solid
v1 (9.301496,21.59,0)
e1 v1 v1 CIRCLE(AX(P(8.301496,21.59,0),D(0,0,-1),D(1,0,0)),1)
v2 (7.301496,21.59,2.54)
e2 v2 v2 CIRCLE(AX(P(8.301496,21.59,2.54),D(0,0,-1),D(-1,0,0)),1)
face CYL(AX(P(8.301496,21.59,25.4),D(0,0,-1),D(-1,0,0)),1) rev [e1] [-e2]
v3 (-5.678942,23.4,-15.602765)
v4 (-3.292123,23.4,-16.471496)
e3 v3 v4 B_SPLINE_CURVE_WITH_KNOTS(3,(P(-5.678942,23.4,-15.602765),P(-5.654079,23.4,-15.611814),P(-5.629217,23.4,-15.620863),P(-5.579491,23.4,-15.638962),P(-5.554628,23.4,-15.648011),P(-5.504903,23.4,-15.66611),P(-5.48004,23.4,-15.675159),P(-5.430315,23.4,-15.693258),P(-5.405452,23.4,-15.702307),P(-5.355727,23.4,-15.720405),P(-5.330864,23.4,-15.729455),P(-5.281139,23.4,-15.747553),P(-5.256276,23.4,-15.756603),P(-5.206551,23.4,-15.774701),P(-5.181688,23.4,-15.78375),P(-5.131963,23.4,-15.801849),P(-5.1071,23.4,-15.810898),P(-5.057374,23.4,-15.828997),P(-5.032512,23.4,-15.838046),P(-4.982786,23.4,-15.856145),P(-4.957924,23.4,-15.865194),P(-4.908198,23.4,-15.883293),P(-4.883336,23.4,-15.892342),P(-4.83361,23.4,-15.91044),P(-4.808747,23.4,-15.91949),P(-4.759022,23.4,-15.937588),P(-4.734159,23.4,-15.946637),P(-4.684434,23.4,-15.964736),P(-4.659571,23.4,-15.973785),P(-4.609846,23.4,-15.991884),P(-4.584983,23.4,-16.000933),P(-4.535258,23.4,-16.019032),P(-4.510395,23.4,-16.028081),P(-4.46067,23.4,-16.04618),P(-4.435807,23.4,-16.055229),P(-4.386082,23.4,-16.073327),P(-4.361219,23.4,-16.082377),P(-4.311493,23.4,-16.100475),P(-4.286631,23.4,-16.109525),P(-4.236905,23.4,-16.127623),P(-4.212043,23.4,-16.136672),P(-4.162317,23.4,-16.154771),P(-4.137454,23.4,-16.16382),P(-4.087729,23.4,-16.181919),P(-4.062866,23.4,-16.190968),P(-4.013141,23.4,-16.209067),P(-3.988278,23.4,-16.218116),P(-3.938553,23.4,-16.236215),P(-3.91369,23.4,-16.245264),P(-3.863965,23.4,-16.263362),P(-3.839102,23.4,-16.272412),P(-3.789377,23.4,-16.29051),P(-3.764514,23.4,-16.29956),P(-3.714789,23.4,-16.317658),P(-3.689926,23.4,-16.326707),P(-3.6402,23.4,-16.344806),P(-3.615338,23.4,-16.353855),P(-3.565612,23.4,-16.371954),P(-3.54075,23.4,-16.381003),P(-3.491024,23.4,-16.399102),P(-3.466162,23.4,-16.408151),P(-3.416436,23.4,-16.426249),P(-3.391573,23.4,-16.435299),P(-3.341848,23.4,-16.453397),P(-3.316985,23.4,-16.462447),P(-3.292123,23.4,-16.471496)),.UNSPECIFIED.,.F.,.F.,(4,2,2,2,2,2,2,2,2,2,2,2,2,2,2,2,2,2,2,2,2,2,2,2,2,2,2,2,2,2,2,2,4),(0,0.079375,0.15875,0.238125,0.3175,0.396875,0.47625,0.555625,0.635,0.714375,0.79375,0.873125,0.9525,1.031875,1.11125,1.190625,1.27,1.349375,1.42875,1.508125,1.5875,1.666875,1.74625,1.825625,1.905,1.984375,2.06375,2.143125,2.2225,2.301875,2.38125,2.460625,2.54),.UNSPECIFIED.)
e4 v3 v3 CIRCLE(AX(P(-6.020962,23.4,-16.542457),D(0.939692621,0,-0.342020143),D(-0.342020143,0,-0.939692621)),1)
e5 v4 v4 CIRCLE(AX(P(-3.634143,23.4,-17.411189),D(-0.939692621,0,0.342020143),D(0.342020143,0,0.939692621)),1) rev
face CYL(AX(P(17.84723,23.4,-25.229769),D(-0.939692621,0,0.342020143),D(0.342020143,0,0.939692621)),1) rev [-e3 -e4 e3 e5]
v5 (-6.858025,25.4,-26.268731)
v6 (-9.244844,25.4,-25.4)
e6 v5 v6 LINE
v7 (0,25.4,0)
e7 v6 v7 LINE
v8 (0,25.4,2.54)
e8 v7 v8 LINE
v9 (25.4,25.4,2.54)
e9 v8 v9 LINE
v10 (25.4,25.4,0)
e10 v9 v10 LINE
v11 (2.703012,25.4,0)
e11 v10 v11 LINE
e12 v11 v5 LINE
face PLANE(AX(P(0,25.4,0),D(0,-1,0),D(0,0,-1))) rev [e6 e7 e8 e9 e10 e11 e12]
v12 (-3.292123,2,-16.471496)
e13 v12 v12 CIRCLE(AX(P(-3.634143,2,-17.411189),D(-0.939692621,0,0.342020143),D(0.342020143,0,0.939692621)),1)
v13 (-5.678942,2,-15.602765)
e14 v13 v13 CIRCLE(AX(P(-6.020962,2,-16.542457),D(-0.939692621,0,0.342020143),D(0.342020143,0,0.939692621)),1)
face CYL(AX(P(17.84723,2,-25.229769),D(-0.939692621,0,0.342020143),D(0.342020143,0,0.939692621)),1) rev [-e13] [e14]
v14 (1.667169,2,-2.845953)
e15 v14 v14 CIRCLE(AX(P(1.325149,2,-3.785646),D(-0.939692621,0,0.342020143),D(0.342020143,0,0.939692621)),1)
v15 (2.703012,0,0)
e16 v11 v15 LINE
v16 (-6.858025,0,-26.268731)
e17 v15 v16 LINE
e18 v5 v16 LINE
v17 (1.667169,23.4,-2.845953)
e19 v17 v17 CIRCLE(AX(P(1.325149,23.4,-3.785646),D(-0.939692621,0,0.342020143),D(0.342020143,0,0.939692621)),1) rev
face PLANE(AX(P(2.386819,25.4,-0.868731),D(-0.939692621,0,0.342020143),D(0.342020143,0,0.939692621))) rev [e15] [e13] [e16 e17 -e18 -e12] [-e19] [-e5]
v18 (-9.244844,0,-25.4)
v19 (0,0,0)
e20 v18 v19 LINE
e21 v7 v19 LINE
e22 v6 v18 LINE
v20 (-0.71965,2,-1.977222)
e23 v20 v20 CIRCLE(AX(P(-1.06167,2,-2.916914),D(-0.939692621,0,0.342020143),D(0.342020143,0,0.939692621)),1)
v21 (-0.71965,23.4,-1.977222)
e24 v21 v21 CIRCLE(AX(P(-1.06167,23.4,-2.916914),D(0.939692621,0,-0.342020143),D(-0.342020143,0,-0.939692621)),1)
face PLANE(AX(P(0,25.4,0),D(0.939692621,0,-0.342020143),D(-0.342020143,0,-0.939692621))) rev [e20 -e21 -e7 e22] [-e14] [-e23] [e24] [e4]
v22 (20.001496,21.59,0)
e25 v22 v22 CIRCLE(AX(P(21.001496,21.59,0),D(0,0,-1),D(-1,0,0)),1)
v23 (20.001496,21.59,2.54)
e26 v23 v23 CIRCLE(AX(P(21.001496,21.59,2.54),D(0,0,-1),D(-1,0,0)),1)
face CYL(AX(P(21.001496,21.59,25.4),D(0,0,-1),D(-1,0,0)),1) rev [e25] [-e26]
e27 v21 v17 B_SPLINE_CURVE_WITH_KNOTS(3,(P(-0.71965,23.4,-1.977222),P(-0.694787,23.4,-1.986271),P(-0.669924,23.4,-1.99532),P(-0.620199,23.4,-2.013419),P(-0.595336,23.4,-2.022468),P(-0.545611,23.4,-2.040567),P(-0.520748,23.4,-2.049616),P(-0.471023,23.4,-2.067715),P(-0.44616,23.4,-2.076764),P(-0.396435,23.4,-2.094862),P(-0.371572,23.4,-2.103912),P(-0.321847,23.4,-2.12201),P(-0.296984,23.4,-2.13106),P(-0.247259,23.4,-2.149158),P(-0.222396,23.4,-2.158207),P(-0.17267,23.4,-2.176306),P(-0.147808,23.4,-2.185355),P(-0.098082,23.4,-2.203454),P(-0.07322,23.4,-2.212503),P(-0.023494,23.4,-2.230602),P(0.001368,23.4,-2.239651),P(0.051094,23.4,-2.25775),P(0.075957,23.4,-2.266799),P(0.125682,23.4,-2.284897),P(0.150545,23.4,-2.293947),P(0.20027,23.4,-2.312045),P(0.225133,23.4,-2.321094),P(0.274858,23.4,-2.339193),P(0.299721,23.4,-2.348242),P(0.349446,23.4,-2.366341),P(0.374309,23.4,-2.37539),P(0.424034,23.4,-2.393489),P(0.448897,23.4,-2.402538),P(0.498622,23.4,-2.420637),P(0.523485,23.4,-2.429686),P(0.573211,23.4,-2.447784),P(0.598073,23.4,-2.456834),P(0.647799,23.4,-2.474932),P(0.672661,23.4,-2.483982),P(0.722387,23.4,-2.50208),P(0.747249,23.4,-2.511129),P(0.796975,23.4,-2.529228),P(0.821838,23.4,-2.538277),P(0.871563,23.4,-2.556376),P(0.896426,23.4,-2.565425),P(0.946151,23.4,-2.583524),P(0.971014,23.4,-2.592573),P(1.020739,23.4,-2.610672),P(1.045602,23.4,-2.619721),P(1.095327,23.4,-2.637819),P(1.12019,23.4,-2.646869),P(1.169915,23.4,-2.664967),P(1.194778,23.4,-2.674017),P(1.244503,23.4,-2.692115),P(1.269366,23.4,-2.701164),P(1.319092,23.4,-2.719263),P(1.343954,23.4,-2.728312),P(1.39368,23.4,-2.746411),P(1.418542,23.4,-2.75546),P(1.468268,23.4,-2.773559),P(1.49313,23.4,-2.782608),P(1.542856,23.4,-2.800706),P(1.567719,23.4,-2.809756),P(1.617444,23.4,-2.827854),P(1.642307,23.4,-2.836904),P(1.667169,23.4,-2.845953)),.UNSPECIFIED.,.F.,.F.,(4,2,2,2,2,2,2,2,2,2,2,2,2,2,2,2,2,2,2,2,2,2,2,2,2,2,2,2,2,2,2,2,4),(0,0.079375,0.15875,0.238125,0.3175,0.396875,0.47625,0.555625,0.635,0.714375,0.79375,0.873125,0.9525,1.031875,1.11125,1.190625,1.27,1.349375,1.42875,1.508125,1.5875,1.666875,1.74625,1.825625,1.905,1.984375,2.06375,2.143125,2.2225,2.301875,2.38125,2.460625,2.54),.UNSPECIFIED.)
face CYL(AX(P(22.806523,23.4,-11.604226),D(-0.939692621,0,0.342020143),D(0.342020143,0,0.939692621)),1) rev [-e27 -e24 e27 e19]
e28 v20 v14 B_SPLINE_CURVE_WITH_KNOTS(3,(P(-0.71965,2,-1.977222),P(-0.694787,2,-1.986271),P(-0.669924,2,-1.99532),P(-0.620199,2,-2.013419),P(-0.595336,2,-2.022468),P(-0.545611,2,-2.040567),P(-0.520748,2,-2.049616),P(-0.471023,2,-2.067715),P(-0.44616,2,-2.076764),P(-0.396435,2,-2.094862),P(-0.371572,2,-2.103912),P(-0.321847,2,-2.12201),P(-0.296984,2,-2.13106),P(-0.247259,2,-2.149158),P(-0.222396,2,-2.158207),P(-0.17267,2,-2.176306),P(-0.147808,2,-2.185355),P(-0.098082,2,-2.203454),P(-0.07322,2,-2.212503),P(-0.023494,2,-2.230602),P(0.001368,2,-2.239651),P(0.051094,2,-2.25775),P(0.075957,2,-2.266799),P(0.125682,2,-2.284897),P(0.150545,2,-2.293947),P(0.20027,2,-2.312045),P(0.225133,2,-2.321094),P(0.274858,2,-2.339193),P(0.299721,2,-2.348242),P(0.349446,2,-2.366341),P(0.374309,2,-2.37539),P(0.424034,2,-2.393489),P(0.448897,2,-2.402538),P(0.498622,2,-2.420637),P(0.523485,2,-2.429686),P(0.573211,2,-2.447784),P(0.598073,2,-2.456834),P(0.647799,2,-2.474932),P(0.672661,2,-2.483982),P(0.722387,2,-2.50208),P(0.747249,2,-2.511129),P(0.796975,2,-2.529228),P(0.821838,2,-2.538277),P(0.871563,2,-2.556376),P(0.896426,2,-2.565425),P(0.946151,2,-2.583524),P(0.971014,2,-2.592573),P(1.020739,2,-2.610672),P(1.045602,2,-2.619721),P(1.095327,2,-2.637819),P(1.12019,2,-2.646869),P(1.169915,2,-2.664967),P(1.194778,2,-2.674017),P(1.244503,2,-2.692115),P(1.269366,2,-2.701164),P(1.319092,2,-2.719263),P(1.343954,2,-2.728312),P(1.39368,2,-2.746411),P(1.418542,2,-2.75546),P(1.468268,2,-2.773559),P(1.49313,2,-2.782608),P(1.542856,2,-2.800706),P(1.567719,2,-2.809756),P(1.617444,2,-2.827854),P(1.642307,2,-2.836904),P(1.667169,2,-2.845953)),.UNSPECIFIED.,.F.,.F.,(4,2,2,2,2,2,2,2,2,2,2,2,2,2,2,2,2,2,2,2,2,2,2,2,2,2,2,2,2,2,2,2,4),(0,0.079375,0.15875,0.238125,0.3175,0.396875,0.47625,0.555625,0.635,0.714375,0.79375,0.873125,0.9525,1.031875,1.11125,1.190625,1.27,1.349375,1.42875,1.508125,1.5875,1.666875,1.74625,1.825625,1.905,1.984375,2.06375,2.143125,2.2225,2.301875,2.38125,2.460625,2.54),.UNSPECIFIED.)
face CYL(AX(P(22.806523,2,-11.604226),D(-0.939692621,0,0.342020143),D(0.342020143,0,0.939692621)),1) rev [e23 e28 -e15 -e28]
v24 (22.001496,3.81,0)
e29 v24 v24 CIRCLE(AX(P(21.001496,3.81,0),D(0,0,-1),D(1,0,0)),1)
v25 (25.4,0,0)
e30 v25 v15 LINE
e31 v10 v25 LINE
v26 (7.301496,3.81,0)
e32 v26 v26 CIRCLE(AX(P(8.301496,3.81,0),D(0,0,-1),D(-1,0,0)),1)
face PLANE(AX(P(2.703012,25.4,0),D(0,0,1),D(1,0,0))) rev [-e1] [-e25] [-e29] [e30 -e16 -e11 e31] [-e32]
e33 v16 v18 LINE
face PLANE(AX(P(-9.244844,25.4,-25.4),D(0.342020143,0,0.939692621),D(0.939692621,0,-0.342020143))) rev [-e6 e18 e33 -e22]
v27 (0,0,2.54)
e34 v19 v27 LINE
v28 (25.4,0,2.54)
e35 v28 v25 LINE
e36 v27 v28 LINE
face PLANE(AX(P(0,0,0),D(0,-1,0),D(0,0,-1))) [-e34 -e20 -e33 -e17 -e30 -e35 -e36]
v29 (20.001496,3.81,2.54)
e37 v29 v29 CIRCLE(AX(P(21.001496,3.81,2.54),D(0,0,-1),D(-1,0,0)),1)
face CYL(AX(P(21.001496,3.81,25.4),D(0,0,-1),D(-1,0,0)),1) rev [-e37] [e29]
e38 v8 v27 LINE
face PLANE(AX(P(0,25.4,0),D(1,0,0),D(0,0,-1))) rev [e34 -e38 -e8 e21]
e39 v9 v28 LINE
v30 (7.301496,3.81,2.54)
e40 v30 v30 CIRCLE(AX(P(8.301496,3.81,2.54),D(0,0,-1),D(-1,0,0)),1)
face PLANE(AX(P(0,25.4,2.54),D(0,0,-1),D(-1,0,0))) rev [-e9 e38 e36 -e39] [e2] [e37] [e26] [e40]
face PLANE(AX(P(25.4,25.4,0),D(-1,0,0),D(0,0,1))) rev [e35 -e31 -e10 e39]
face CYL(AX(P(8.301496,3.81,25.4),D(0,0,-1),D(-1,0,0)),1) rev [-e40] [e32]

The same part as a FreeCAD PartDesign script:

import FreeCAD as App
import Part
import Sketcher
from FreeCAD import Vector
Q = App.Units.Quantity


def add_polygon(sketch, points):
    """Adds a closed chain of lines whose ends are joined by coincident constraints."""
    first, n = sketch.GeometryCount, len(points)
    for a, b in zip(points, points[1:] + points[:1]):
        sketch.addGeometry(Part.LineSegment(App.Vector(*a, 0), App.Vector(*b, 0)), False)
    for i in range(n):
        sketch.addConstraint(Sketcher.Constraint("Coincident", first + i, 2, first + (i + 1) % n, 1))

doc = App.newDocument("Part")
body = doc.addObject("PartDesign::Body", "Body")

# Sketch on XZ plane
sketch1 = body.newObject("Sketcher::SketchObject", "Sketch")
sketch1.AttachmentSupport = (doc.getObject("XZ_Plane"), [""])
sketch1.MapMode = "FlatFace"
add_polygon(sketch1, [(0, 0), (0, 2.5), (25.4, 2.5), (25.4, 0), (2.7, 0), (2.4, -0.9), (-6.9, -26.3), (-9.2, -25.4)])  # lines 0-7
sketch1.addConstraint(Sketcher.Constraint("Vertical", 0))
sketch1.addConstraint(Sketcher.Constraint("Horizontal", 1))
sketch1.addConstraint(Sketcher.Constraint("Vertical", 2))
sketch1.addConstraint(Sketcher.Constraint("Horizontal", 3))
sketch1.addConstraint(Sketcher.Constraint("Coincident", 7, 2, -1, 1))
sketch1.addConstraint(Sketcher.Constraint("PointOnObject", 2, 2, -1))
sketch1.addConstraint(Sketcher.Constraint("Parallel", 4, 5))
sketch1.addConstraint(Sketcher.Constraint("Perpendicular", 5, 6))
sketch1.addConstraint(Sketcher.Constraint("Perpendicular", 6, 7))
sketch1.addConstraint(Sketcher.Constraint("Equal", 5, 7))
sketch1.addConstraint(Sketcher.Constraint("DistanceX", 1, 1, 1, 2, Q("1 in")))
sketch1.addConstraint(Sketcher.Constraint("DistanceY", 0, 1, 0, 2, Q("0.1 in")))
sketch1.addConstraint(Sketcher.Constraint("DistanceY", 6, 2, -1, 1, Q("1 in")))
sketch1.addConstraint(Sketcher.Constraint("Angle", 4, Q("-110 deg")))
sketch1.addConstraint(Sketcher.Constraint("Distance", 6, Q("0.1 in")))
pad1 = body.newObject("PartDesign::Pad", "Pad")
pad1.Profile = sketch1
pad1.Length = Q("1 in")
pad1.Reversed = True

# Sketch on an angled plane
sketch2 = body.newObject("Sketcher::SketchObject", "Sketch001")
sketch2.Placement = App.Placement(Vector(0, 0, 0), App.Rotation(Vector(0.342020143, 0, 0.939692621), Vector(0, 1, 0), Vector(-0.939692621, 0, 0.342020143), "ZXY"))
sketch2.addGeometry(Part.Circle(Vector(-17.6, 2, 0), Vector(0, 0, 1), 1), False)
sketch2.addConstraint(Sketcher.Constraint("Diameter", 0, 2.0))
sketch2.addConstraint(Sketcher.Constraint("DistanceY", -1, 1, 0, 3, 2.0))
sketch2.addConstraint(Sketcher.Constraint("DistanceX", 0, 3, -1, 1, 17.604115))
pocket1 = body.newObject("PartDesign::Pocket", "Pocket")
pocket1.Profile = sketch2
pocket1.Length = Q("1 in")

# Sketch on an angled plane
sketch3 = body.newObject("Sketcher::SketchObject", "Sketch002")
sketch3.Placement = App.Placement(Vector(0, 0, 0), App.Rotation(Vector(0.342020143, 0, 0.939692621), Vector(0, 1, 0), Vector(-0.939692621, 0, 0.342020143), "ZXY"))
sketch3.addGeometry(Part.Circle(Vector(-17.6, 23.4, 0), Vector(0, 0, 1), 1), False)
sketch3.addConstraint(Sketcher.Constraint("Diameter", 0, 2.0))
sketch3.addConstraint(Sketcher.Constraint("DistanceY", -1, 1, 0, 3, 23.4))
sketch3.addConstraint(Sketcher.Constraint("DistanceX", 0, 3, -1, 1, 17.604115))
pocket2 = body.newObject("PartDesign::Pocket", "Pocket001")
pocket2.Profile = sketch3
pocket2.Length = Q("1 in")

# Sketch on an angled plane
sketch4 = body.newObject("Sketcher::SketchObject", "Sketch003")
sketch4.Placement = App.Placement(Vector(0, 0, 0), App.Rotation(Vector(0.342020143, 0, 0.939692621), Vector(0, 1, 0), Vector(-0.939692621, 0, 0.342020143), "ZXY"))
sketch4.addGeometry(Part.Circle(Vector(-3.1, 2, 0), Vector(0, 0, 1), 1), False)
sketch4.addConstraint(Sketcher.Constraint("Diameter", 0, 2.0))
sketch4.addConstraint(Sketcher.Constraint("DistanceY", -1, 1, 0, 3, 2.0))
sketch4.addConstraint(Sketcher.Constraint("DistanceX", 0, 3, -1, 1, 3.104115))
pocket3 = body.newObject("PartDesign::Pocket", "Pocket002")
pocket3.Profile = sketch4
pocket3.Length = Q("1 in")

# Sketch on an angled plane
sketch5 = body.newObject("Sketcher::SketchObject", "Sketch004")
sketch5.Placement = App.Placement(Vector(0, 0, 0), App.Rotation(Vector(0.342020143, 0, 0.939692621), Vector(0, 1, 0), Vector(-0.939692621, 0, 0.342020143), "ZXY"))
sketch5.addGeometry(Part.Circle(Vector(-3.1, 23.4, 0), Vector(0, 0, 1), 1), False)
sketch5.addConstraint(Sketcher.Constraint("Diameter", 0, 2.0))
sketch5.addConstraint(Sketcher.Constraint("DistanceY", -1, 1, 0, 3, 23.4))
sketch5.addConstraint(Sketcher.Constraint("DistanceX", 0, 3, -1, 1, 3.104115))
pocket4 = body.newObject("PartDesign::Pocket", "Pocket003")
pocket4.Profile = sketch5
pocket4.Length = Q("1 in")

# Sketch on XY plane
sketch6 = body.newObject("Sketcher::SketchObject", "Sketch005")
sketch6.AttachmentSupport = (doc.getObject("XY_Plane"), [""])
sketch6.MapMode = "FlatFace"
sketch6.addGeometry(Part.Circle(Vector(21, 21.6, 0), Vector(0, 0, 1), 1), False)
sketch6.addGeometry(Part.Circle(Vector(21, 3.8, 0), Vector(0, 0, 1), 1), False)
sketch6.addGeometry(Part.Circle(Vector(8.3, 21.6, 0), Vector(0, 0, 1), 1), False)
sketch6.addGeometry(Part.Circle(Vector(8.3, 3.8, 0), Vector(0, 0, 1), 1), False)
sketch6.addConstraint(Sketcher.Constraint("Equal", 0, 1))
sketch6.addConstraint(Sketcher.Constraint("Equal", 1, 2))
sketch6.addConstraint(Sketcher.Constraint("Equal", 2, 3))
sketch6.addConstraint(Sketcher.Constraint("Horizontal", 0, 3, 2, 3))
sketch6.addConstraint(Sketcher.Constraint("Horizontal", 1, 3, 3, 3))
sketch6.addConstraint(Sketcher.Constraint("Vertical", 0, 3, 1, 3))
sketch6.addConstraint(Sketcher.Constraint("Vertical", 2, 3, 3, 3))
sketch6.addConstraint(Sketcher.Constraint("DistanceY", 1, 3, 0, 3, Q("0.7 in")))
sketch6.addConstraint(Sketcher.Constraint("DistanceX", 2, 3, 0, 3, Q("0.5 in")))
sketch6.addConstraint(Sketcher.Constraint("Diameter", 0, 2.0))
sketch6.addConstraint(Sketcher.Constraint("DistanceY", -1, 1, 0, 3, Q("0.85 in")))
sketch6.addConstraint(Sketcher.Constraint("DistanceX", -1, 1, 0, 3, 21.001496))
pocket5 = body.newObject("PartDesign::Pocket", "Pocket004")
pocket5.Profile = sketch6
pocket5.Length = Q("1 in")
pocket5.Reversed = True

doc.recompute()
